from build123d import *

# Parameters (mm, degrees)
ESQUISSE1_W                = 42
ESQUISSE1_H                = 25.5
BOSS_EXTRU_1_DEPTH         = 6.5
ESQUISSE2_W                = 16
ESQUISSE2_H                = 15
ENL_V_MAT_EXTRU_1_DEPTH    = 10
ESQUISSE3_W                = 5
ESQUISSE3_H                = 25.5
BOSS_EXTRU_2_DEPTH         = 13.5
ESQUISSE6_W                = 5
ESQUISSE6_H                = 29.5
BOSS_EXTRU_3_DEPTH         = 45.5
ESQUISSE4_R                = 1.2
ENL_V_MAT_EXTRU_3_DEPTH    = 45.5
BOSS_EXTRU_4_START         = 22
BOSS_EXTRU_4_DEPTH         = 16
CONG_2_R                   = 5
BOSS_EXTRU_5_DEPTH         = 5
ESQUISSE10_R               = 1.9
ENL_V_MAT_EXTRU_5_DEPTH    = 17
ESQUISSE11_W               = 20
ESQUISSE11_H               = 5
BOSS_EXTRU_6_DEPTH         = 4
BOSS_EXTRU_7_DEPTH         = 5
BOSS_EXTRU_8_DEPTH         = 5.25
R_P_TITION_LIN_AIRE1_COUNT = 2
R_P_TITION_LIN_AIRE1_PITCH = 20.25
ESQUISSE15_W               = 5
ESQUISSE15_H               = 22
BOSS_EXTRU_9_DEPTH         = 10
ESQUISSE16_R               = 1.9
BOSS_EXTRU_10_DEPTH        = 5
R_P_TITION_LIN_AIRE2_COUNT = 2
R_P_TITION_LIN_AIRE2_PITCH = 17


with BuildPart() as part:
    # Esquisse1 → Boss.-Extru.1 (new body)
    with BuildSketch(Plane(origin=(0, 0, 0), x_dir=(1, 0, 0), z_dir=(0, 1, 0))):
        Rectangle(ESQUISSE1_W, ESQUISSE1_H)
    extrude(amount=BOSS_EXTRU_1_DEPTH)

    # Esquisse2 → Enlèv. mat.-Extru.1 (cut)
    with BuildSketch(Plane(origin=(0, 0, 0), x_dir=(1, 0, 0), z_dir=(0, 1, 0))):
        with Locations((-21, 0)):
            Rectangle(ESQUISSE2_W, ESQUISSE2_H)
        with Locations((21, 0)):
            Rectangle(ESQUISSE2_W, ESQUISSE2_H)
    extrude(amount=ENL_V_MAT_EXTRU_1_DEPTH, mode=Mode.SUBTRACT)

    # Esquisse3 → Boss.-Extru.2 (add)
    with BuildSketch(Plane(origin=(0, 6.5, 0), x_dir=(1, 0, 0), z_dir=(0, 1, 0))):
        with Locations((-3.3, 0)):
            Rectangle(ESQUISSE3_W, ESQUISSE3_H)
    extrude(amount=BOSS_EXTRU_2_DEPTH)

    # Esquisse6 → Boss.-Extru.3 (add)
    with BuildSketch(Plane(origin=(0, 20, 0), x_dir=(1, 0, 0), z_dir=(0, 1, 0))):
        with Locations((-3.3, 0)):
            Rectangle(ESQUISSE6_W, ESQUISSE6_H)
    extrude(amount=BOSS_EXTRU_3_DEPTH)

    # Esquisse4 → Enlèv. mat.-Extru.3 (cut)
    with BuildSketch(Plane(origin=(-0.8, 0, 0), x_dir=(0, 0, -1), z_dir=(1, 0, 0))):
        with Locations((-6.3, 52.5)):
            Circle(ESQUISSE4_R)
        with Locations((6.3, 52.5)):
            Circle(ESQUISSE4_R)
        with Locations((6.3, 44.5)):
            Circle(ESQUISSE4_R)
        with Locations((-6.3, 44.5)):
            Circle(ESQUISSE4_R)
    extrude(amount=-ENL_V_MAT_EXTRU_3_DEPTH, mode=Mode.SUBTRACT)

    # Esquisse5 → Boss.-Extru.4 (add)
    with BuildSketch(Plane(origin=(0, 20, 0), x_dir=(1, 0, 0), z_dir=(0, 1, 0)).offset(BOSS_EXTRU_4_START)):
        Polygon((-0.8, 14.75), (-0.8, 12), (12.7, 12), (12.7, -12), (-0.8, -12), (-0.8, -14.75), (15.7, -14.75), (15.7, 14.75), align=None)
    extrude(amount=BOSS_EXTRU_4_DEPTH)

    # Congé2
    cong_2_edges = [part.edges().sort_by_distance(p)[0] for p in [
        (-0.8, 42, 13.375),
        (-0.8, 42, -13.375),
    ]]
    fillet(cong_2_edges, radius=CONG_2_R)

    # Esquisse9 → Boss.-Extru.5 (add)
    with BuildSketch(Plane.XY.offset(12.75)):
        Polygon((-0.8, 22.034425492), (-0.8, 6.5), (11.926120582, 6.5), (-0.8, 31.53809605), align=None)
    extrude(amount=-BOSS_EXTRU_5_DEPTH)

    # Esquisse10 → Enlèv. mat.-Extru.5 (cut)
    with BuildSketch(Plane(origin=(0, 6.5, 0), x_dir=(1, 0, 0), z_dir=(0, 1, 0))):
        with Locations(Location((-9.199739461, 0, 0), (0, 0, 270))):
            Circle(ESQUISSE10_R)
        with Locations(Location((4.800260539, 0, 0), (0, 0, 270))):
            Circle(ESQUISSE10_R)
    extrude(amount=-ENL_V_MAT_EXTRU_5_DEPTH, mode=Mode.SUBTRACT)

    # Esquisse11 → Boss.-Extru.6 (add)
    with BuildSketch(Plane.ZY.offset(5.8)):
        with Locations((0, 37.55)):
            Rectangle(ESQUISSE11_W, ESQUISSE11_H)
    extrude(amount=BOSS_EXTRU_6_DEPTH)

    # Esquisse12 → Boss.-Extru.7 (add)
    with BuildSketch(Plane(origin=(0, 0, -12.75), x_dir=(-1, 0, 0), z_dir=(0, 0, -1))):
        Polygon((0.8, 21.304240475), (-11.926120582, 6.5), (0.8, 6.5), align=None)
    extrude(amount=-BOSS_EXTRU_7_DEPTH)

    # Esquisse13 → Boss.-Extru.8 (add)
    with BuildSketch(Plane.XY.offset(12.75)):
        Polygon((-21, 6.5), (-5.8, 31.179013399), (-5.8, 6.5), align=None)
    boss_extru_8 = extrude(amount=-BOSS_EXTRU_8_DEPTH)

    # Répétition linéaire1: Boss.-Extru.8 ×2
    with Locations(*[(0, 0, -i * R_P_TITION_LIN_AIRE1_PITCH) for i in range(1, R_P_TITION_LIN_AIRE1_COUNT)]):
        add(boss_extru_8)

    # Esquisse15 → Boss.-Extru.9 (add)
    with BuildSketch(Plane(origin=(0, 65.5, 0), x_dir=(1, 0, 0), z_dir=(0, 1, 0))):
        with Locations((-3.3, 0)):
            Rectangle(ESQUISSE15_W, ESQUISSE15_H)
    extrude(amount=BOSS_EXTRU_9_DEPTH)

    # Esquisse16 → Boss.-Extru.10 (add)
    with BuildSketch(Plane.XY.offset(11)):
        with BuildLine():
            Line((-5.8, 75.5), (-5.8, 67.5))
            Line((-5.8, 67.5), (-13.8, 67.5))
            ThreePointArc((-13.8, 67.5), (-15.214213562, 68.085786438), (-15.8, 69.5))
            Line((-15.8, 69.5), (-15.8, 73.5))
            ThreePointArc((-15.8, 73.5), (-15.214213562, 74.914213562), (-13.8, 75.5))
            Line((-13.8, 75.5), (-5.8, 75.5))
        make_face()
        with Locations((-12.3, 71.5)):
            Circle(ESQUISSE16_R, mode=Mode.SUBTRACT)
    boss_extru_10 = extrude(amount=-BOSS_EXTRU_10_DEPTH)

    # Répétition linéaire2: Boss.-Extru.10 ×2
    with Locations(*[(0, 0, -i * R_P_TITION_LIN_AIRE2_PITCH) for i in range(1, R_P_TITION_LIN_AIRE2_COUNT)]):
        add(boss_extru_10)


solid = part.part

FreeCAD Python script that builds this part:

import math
import FreeCAD as App
import Part
import Sketcher
from FreeCAD import Vector
Q = App.Units.Quantity


def edges_at(feature, points):
    """Names of the edges that pass closest to the given points."""
    edges = feature.Shape.Edges
    near = lambda p: min(range(len(edges)), key=lambda i: edges[i].distToShape(Part.Vertex(*p))[0])
    return sorted({f"Edge{near(p) + 1}" for p in points})


def add_polygon(sketch, points):
    """Adds a closed chain of lines whose ends are joined by coincident constraints."""
    first, n = sketch.GeometryCount, len(points)
    for a, b in zip(points, points[1:] + points[:1]):
        sketch.addGeometry(Part.LineSegment(App.Vector(*a, 0), App.Vector(*b, 0)), False)
    for i in range(n):
        sketch.addConstraint(Sketcher.Constraint("Coincident", first + i, 2, first + (i + 1) % n, 1))

doc = App.newDocument("Part")
body = doc.addObject("PartDesign::Body", "Body")

# Sketch on XZ plane
sketch1 = body.newObject("Sketcher::SketchObject", "Sketch")
sketch1.AttachmentSupport = (doc.getObject("XZ_Plane"), [""])
sketch1.MapMode = "FlatFace"
add_polygon(sketch1, [(-21, -13), (-21, 13), (21, 13), (21, -13)])  # lines 0-3
sketch1.addConstraint([
    Sketcher.Constraint("Vertical", 0),
    Sketcher.Constraint("Horizontal", 1),
    Sketcher.Constraint("Vertical", 2),
    Sketcher.Constraint("Horizontal", 3),
    Sketcher.Constraint("Symmetric", 0, 2, 2, 2, -1, 1),
    Sketcher.Constraint("DistanceX", 1, 1, 1, 2, Q("42 mm")),
    Sketcher.Constraint("DistanceY", 0, 1, 0, 2, Q("25.5 mm")),
])
pad1 = body.newObject("PartDesign::Pad", "Pad")
pad1.Profile = sketch1
pad1.Length = 6.5
pad1.Reversed = True

# Sketch on XZ plane
sketch2 = body.newObject("Sketcher::SketchObject", "Sketch001")
sketch2.AttachmentSupport = (doc.getObject("XZ_Plane"), [""])
sketch2.MapMode = "FlatFace"
add_polygon(sketch2, [(-29, -8), (-29, 8), (-13, 8), (-13, -8)])  # lines 0-3
add_polygon(sketch2, [(13, -8), (13, 8), (29, 8), (29, -8)])  # lines 4-7
sketch2.addConstraint([
    Sketcher.Constraint("Vertical", 0),
    Sketcher.Constraint("Horizontal", 1),
    Sketcher.Constraint("Vertical", 2),
    Sketcher.Constraint("Horizontal", 3),
    Sketcher.Constraint("Vertical", 4),
    Sketcher.Constraint("Horizontal", 5),
    Sketcher.Constraint("Vertical", 6),
    Sketcher.Constraint("Horizontal", 7),
    Sketcher.Constraint("Symmetric", 2, 2, 4, 2, -1, 1),
    Sketcher.Constraint("Symmetric", 0, 2, 6, 2, -1, 1),
    Sketcher.Constraint("Horizontal", 1, 2, 4, 2),
    Sketcher.Constraint("DistanceX", 1, 1, 1, 2, Q("16 mm")),
    Sketcher.Constraint("DistanceY", 0, 1, 0, 2, Q("15 mm")),
    Sketcher.Constraint("DistanceX", 0, 2, -1, 1, Q("29 mm")),
])
pocket1 = body.newObject("PartDesign::Pocket", "Pocket")
pocket1.Profile = sketch2
pocket1.Length = 10

# Sketch on XZ plane
sketch3 = body.newObject("Sketcher::SketchObject", "Sketch002")
sketch3.AttachmentSupport = (doc.getObject("XZ_Plane"), [""])
sketch3.MapMode = "FlatFace"
sketch3.AttachmentOffset = App.Placement(Vector(0, 0, -6.5), App.Rotation())
add_polygon(sketch3, [(-6, -13), (-6, 13), (-1, 13), (-1, -13)])  # lines 0-3
sketch3.addConstraint([
    Sketcher.Constraint("Vertical", 0),
    Sketcher.Constraint("Horizontal", 1),
    Sketcher.Constraint("Vertical", 2),
    Sketcher.Constraint("Horizontal", 3),
    Sketcher.Constraint("DistanceX", 1, 1, 1, 2, Q("5 mm")),
    Sketcher.Constraint("DistanceY", 0, 1, 0, 2, Q("25.5 mm")),
    Sketcher.Constraint("DistanceX", 0, 2, -1, 1, Q("5.8 mm")),
    Sketcher.Constraint("DistanceY", -1, 1, 0, 2, Q("12.75 mm")),
])
pad2 = body.newObject("PartDesign::Pad", "Pad001")
pad2.Profile = sketch3
pad2.Length = 13.5
pad2.Reversed = True

# Sketch on XZ plane
sketch4 = body.newObject("Sketcher::SketchObject", "Sketch003")
sketch4.AttachmentSupport = (doc.getObject("XZ_Plane"), [""])
sketch4.MapMode = "FlatFace"
sketch4.AttachmentOffset = App.Placement(Vector(0, 0, -20), App.Rotation())
add_polygon(sketch4, [(-6, -15), (-6, 15), (-1, 15), (-1, -15)])  # lines 0-3
sketch4.addConstraint([
    Sketcher.Constraint("Vertical", 0),
    Sketcher.Constraint("Horizontal", 1),
    Sketcher.Constraint("Vertical", 2),
    Sketcher.Constraint("Horizontal", 3),
    Sketcher.Constraint("DistanceX", 1, 1, 1, 2, Q("5 mm")),
    Sketcher.Constraint("DistanceY", 0, 1, 0, 2, Q("29.5 mm")),
    Sketcher.Constraint("DistanceX", 0, 2, -1, 1, Q("5.8 mm")),
    Sketcher.Constraint("DistanceY", -1, 1, 0, 2, Q("14.75 mm")),
])
pad3 = body.newObject("PartDesign::Pad", "Pad002")
pad3.Profile = sketch4
pad3.Length = 45.5
pad3.Reversed = True

# Sketch on YZ plane
sketch5 = body.newObject("Sketcher::SketchObject", "Sketch004")
sketch5.AttachmentSupport = (doc.getObject("YZ_Plane"), [""])
sketch5.MapMode = "FlatFace"
sketch5.AttachmentOffset = App.Placement(Vector(0, 0, -0.8), App.Rotation())
sketch5.addGeometry([
    Part.Circle(Vector(52.5, 6.3, 0), Vector(0, 0, 1), 1.2),
    Part.Circle(Vector(52.5, -6.3, 0), Vector(0, 0, 1), 1.2),
    Part.Circle(Vector(44.5, -6.3, 0), Vector(0, 0, 1), 1.2),
    Part.Circle(Vector(44.5, 6.3, 0), Vector(0, 0, 1), 1.2),
], False)
sketch5.addConstraint([
    Sketcher.Constraint("Equal", 0, 1),
    Sketcher.Constraint("Equal", 1, 2),
    Sketcher.Constraint("Equal", 2, 3),
    Sketcher.Constraint("Symmetric", 0, 3, 1, 3, -1),
    Sketcher.Constraint("Symmetric", 2, 3, 3, 3, -1),
    Sketcher.Constraint("Horizontal", 1, 3, 2, 3),
    Sketcher.Constraint("Diameter", 0, Q("2.4 mm")),
    Sketcher.Constraint("DistanceX", 2, 3, 1, 3, Q("8 mm")),
    Sketcher.Constraint("DistanceX", -1, 1, 0, 3, Q("52.5 mm")),
    Sketcher.Constraint("DistanceY", -1, 1, 0, 3, Q("6.3 mm")),
])
pocket2 = body.newObject("PartDesign::Pocket", "Pocket001")
pocket2.Profile = sketch5
pocket2.Length = 45.5

# Sketch on XZ plane
sketch6 = body.newObject("Sketcher::SketchObject", "Sketch005")
sketch6.AttachmentSupport = (doc.getObject("XZ_Plane"), [""])
sketch6.MapMode = "FlatFace"
sketch6.AttachmentOffset = App.Placement(Vector(0, 0, -42), App.Rotation())
add_polygon(sketch6, [(-0.8, -14.8), (-0.8, -12), (12.7, -12), (12.7, 12), (-0.8, 12), (-0.8, 14.8), (15.7, 14.8), (15.7, -14.8)])  # lines 0-7
sketch6.addConstraint([
    Sketcher.Constraint("Vertical", 0),
    Sketcher.Constraint("Horizontal", 1),
    Sketcher.Constraint("Vertical", 2),
    Sketcher.Constraint("Horizontal", 3),
    Sketcher.Constraint("Vertical", 4),
    Sketcher.Constraint("Horizontal", 5),
    Sketcher.Constraint("Vertical", 6),
    Sketcher.Constraint("Horizontal", 7),
    Sketcher.Constraint("Symmetric", 0, 2, 3, 2, -1),
    Sketcher.Constraint("Equal", 0, 4),
    Sketcher.Constraint("DistanceY", 2, 1, 2, 2, Q("24 mm")),
    Sketcher.Constraint("DistanceX", 1, 1, 1, 2, Q("13.5 mm")),
    Sketcher.Constraint("DistanceX", 5, 1, 5, 2, Q("16.5 mm")),
    Sketcher.Constraint("DistanceY", 6, 2, 6, 1, Q("29.5 mm")),
    Sketcher.Constraint("DistanceX", 0, 2, -1, 1, Q("0.8 mm")),
])
pad4 = body.newObject("PartDesign::Pad", "Pad003")
pad4.Profile = sketch6
pad4.Length = 16
pad4.Reversed = True
doc.recompute()

fillet = body.newObject("PartDesign::Fillet", "Fillet")
fillet.Base = (pad4, edges_at(pad4, [(-0.8, 42, 13.375), (-0.8, 42, -13.375)]))
fillet.Radius = 5

# Sketch on XY plane
sketch7 = body.newObject("Sketcher::SketchObject", "Sketch006")
sketch7.AttachmentSupport = (doc.getObject("XY_Plane"), [""])
sketch7.MapMode = "FlatFace"
sketch7.AttachmentOffset = App.Placement(Vector(0, 0, 12.75), App.Rotation())
add_polygon(sketch7, [(-1, 6), (12, 6), (-1, 32)])  # lines 0-2
sketch7.addConstraint([
    Sketcher.Constraint("Horizontal", 0),
    Sketcher.Constraint("Vertical", 2),
    Sketcher.Constraint("DistanceY", -1, 1, 0, 2, Q("6.5 mm")),
    Sketcher.Constraint("DistanceX", 1, 2, -1, 1, Q("0.8 mm")),
    Sketcher.Constraint("DistanceX", 0, 1, 0, 2, Q("12.726121 mm")),
    Sketcher.Constraint("Distance", 1, Q("28.086659 mm")),
])
pad5 = body.newObject("PartDesign::Pad", "Pad004")
pad5.Profile = sketch7
pad5.Length = 5
pad5.Reversed = True

# Sketch on XZ plane
sketch8 = body.newObject("Sketcher::SketchObject", "Sketch007")
sketch8.AttachmentSupport = (doc.getObject("XZ_Plane"), [""])
sketch8.MapMode = "FlatFace"
sketch8.AttachmentOffset = App.Placement(Vector(0, 0, -6.5), App.Rotation())
sketch8.addGeometry([
    Part.Circle(Vector(-9.2, 0, 0), Vector(0, 0, 1), 1.9),
    Part.Circle(Vector(4.8, 0, 0), Vector(0, 0, 1), 1.9),
], False)
sketch8.addConstraint([
    Sketcher.Constraint("Equal", 0, 1),
    Sketcher.Constraint("PointOnObject", 0, 3, -1),
    Sketcher.Constraint("PointOnObject", 1, 3, -1),
    Sketcher.Constraint("Diameter", 0, Q("3.8 mm")),
    Sketcher.Constraint("DistanceX", 0, 3, 1, 3, Q("14 mm")),
    Sketcher.Constraint("DistanceX", 0, 3, -1, 1, Q("9.199739 mm")),
])
pocket3 = body.newObject("PartDesign::Pocket", "Pocket002")
pocket3.Profile = sketch8
pocket3.Length = 17
pocket3.Reversed = True

# Sketch on YZ plane
sketch9 = body.newObject("Sketcher::SketchObject", "Sketch008")
sketch9.AttachmentSupport = (doc.getObject("YZ_Plane"), [""])
sketch9.MapMode = "FlatFace"
sketch9.AttachmentOffset = App.Placement(Vector(0, 0, -5.8), App.Rotation())
add_polygon(sketch9, [(40, -10), (35, -10), (35, 10), (40, 10)])  # lines 0-3
sketch9.addConstraint([
    Sketcher.Constraint("Horizontal", 0),
    Sketcher.Constraint("Vertical", 1),
    Sketcher.Constraint("Horizontal", 2),
    Sketcher.Constraint("Vertical", 3),
    Sketcher.Constraint("DistanceX", 0, 2, 0, 1, Q("5 mm")),
    Sketcher.Constraint("DistanceY", 1, 1, 1, 2, Q("20 mm")),
    Sketcher.Constraint("DistanceY", 0, 2, -1, 1, Q("10 mm")),
    Sketcher.Constraint("DistanceX", -1, 1, 0, 2, Q("35.05 mm")),
])
pad6 = body.newObject("PartDesign::Pad", "Pad005")
pad6.Profile = sketch9
pad6.Length = 4
pad6.Reversed = True

# Sketch on XY plane
sketch10 = body.newObject("Sketcher::SketchObject", "Sketch009")
sketch10.AttachmentSupport = (doc.getObject("XY_Plane"), [""])
sketch10.MapMode = "FlatFace"
sketch10.AttachmentOffset = App.Placement(Vector(0, 0, -12.75), App.Rotation())
add_polygon(sketch10, [(-1, 21), (12, 6), (-1, 6)])  # lines 0-2
sketch10.addConstraint([
    Sketcher.Constraint("Horizontal", 1),
    Sketcher.Constraint("Vertical", 2),
    Sketcher.Constraint("DistanceY", -1, 1, 0, 2, Q("6.5 mm")),
    Sketcher.Constraint("DistanceX", 1, 2, -1, 1, Q("0.8 mm")),
    Sketcher.Constraint("DistanceX", 1, 2, 1, 1, Q("12.726121 mm")),
    Sketcher.Constraint("DistanceY", 2, 1, 2, 2, Q("14.80424 mm")),
])
pad7 = body.newObject("PartDesign::Pad", "Pad006")
pad7.Profile = sketch10
pad7.Length = 5

# Sketch on XY plane
sketch11 = body.newObject("Sketcher::SketchObject", "Sketch010")
sketch11.AttachmentSupport = (doc.getObject("XY_Plane"), [""])
sketch11.MapMode = "FlatFace"
sketch11.AttachmentOffset = App.Placement(Vector(0, 0, 12.75), App.Rotation())
add_polygon(sketch11, [(-6, 31), (-21, 6), (-6, 6)])  # lines 0-2
sketch11.addConstraint([
    Sketcher.Constraint("Horizontal", 1),
    Sketcher.Constraint("Vertical", 2),
    Sketcher.Constraint("DistanceX", 1, 1, 1, 2, Q("15.2 mm")),
    Sketcher.Constraint("DistanceX", 0, 2, -1, 1, Q("21 mm")),
    Sketcher.Constraint("DistanceY", -1, 1, 0, 2, Q("6.5 mm")),
    Sketcher.Constraint("Distance", 0, Q("28.98437 mm")),
])
pad8 = body.newObject("PartDesign::Pad", "Pad007")
pad8.Profile = sketch11
pad8.Length = 5.25
pad8.Reversed = True
doc.recompute()

linearpattern = body.newObject("PartDesign::LinearPattern", "LinearPattern")
linearpattern.Originals = [pad8]
linearpattern.Direction = (doc.getObject("Z_Axis"), [""])
linearpattern.Mode = "offset"
linearpattern.Offset = 20.25
linearpattern.Occurrences = 2
linearpattern.Reversed = True
body.Tip = linearpattern

# Sketch on XZ plane
sketch12 = body.newObject("Sketcher::SketchObject", "Sketch011")
sketch12.AttachmentSupport = (doc.getObject("XZ_Plane"), [""])
sketch12.MapMode = "FlatFace"
sketch12.AttachmentOffset = App.Placement(Vector(0, 0, -65.5), App.Rotation())
add_polygon(sketch12, [(-6, -11), (-6, 11), (-1, 11), (-1, -11)])  # lines 0-3
sketch12.addConstraint([
    Sketcher.Constraint("Vertical", 0),
    Sketcher.Constraint("Horizontal", 1),
    Sketcher.Constraint("Vertical", 2),
    Sketcher.Constraint("Horizontal", 3),
    Sketcher.Constraint("DistanceX", 1, 1, 1, 2, Q("5 mm")),
    Sketcher.Constraint("DistanceY", 0, 1, 0, 2, Q("22 mm")),
    Sketcher.Constraint("DistanceY", -1, 1, 0, 2, Q("11 mm")),
    Sketcher.Constraint("DistanceX", 0, 2, -1, 1, Q("5.8 mm")),
])
pad9 = body.newObject("PartDesign::Pad", "Pad008")
pad9.Profile = sketch12
pad9.Length = 10
pad9.Reversed = True

# Sketch on XY plane
sketch13 = body.newObject("Sketcher::SketchObject", "Sketch012")
sketch13.AttachmentSupport = (doc.getObject("XY_Plane"), [""])
sketch13.MapMode = "FlatFace"
sketch13.AttachmentOffset = App.Placement(Vector(0, 0, 11), App.Rotation())
sketch13.addGeometry([
    Part.LineSegment(Vector(-5.8, 67.5, 0), Vector(-5.8, 75.5, 0)),  # 0
    Part.LineSegment(Vector(-5.8, 75.5, 0), Vector(-13.8, 75.5, 0)),  # 1
    Part.ArcOfCircle(Part.Circle(Vector(-13.8, 73.5, 0), Vector(0, 0, 1), 2), math.radians(90), math.radians(180)),  # 2
    Part.LineSegment(Vector(-15.8, 73.5, 0), Vector(-15.8, 69.5, 0)),  # 3
    Part.ArcOfCircle(Part.Circle(Vector(-13.8, 69.5, 0), Vector(0, 0, 1), 2), math.radians(-180), math.radians(-90)),  # 4
    Part.LineSegment(Vector(-13.8, 67.5, 0), Vector(-5.8, 67.5, 0)),  # 5
    Part.Circle(Vector(-12.3, 71.5, 0), Vector(0, 0, 1), 1.9),  # 6
], False)
sketch13.addConstraint([
    Sketcher.Constraint("Coincident", 0, 2, 1, 1),
    Sketcher.Constraint("Tangent", 1, 2, 2, 1),
    Sketcher.Constraint("Tangent", 2, 2, 3, 1),
    Sketcher.Constraint("Tangent", 3, 2, 4, 1),
    Sketcher.Constraint("Tangent", 4, 2, 5, 1),
    Sketcher.Constraint("Coincident", 5, 2, 0, 1),
    Sketcher.Constraint("Vertical", 0),
    Sketcher.Constraint("Horizontal", 1),
    Sketcher.Constraint("Vertical", 3),
    Sketcher.Constraint("Horizontal", 5),
    Sketcher.Constraint("Equal", 2, 4),
    Sketcher.Constraint("Equal", 5, 0),
    Sketcher.Constraint("Radius", 2, Q("2 mm")),
    Sketcher.Constraint("Diameter", 6, Q("3.8 mm")),
    Sketcher.Constraint("DistanceX", 1, 2, 1, 1, Q("8 mm")),
    Sketcher.Constraint("DistanceY", 6, 3, 2, 3, Q("2 mm")),
    Sketcher.Constraint("DistanceX", 2, 3, -1, 1, Q("13.8 mm")),
    Sketcher.Constraint("DistanceY", -1, 1, 2, 3, Q("73.5 mm")),
    Sketcher.Constraint("DistanceX", 6, 3, -1, 1, Q("12.3 mm")),
])
pad10 = body.newObject("PartDesign::Pad", "Pad009")
pad10.Profile = sketch13
pad10.Length = 5
pad10.Reversed = True
doc.recompute()

linearpattern2 = body.newObject("PartDesign::LinearPattern", "LinearPattern001")
linearpattern2.Originals = [pad10]
linearpattern2.Direction = (doc.getObject("Z_Axis"), [""])
linearpattern2.Mode = "offset"
linearpattern2.Offset = 17
linearpattern2.Occurrences = 2
linearpattern2.Reversed = True
body.Tip = linearpattern2

doc.recompute()
